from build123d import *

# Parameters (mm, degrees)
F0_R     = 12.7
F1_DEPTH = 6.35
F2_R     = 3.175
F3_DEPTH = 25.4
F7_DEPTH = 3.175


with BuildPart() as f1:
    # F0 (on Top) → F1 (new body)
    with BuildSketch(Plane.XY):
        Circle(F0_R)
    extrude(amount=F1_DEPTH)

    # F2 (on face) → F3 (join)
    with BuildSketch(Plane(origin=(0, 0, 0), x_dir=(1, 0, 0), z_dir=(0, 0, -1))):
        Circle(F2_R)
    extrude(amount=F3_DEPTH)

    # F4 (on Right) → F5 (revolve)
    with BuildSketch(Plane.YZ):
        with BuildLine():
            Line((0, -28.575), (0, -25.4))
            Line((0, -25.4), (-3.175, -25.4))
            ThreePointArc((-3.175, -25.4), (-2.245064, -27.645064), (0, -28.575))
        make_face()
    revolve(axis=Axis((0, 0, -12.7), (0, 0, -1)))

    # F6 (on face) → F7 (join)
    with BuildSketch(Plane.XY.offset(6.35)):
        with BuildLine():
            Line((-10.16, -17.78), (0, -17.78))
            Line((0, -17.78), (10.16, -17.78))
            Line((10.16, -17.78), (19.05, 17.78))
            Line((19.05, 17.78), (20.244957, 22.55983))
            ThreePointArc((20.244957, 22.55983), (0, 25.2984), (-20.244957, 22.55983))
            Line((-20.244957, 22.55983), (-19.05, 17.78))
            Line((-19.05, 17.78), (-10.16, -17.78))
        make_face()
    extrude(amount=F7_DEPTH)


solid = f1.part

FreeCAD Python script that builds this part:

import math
import FreeCAD as App
import Part
import Sketcher

V = App.Vector
Q = App.Units.Quantity

doc = App.newDocument("Part")
body = doc.addObject("PartDesign::Body", "Body")

sketch1 = body.newObject("Sketcher::SketchObject", "Sketch")
sketch1.AttachmentSupport = (doc.getObject("XY_Plane"), [""])
sketch1.MapMode = "FlatFace"
sketch1.addGeometry(Part.Circle(V(0, 0, 0), V(0, 0, 1), 12.7), False)
sketch1.addConstraint([
    Sketcher.Constraint("Coincident", 0, 3, -1, 1),
    Sketcher.Constraint("Diameter", 0, Q("1 in")),
])
pad1 = body.newObject("PartDesign::Pad", "Pad")
pad1.Profile = sketch1
pad1.Length = Q("0.25 in")

sketch2 = body.newObject("Sketcher::SketchObject", "Sketch001")
sketch2.AttachmentSupport = (doc.getObject("XY_Plane"), [""])
sketch2.MapMode = "FlatFace"
sketch2.addGeometry(Part.Circle(V(0, 0, 0), V(0, 0, 1), 3.175), False)
sketch2.addConstraint([
    Sketcher.Constraint("Coincident", 0, 3, -1, 1),
    Sketcher.Constraint("Diameter", 0, Q("0.25 in")),
])
pad2 = body.newObject("PartDesign::Pad", "Pad001")
pad2.Profile = sketch2
pad2.Length = Q("1 in")
pad2.Reversed = True

sketch3 = body.newObject("Sketcher::SketchObject", "Sketch002")
sketch3.AttachmentSupport = (doc.getObject("YZ_Plane"), [""])
sketch3.MapMode = "FlatFace"
sketch3.addGeometry([
    Part.LineSegment(V(0, -28.575, 0), V(0, -25.4, 0)),
    Part.LineSegment(V(0, -25.4, 0), V(-3.175, -25.4, 0)),
    Part.ArcOfCircle(Part.Circle(V(0, -25.4, 0), V(0, 0, 1), 3.175), math.radians(-179.999998), math.radians(-90.000002)),
], False)
sketch3.addConstraint([
    Sketcher.Constraint("Coincident", 0, 2, 1, 1),
    Sketcher.Constraint("Coincident", 1, 2, 2, 1),
    Sketcher.Constraint("Coincident", 2, 2, 0, 1),
    Sketcher.Constraint("Vertical", 0),
    Sketcher.Constraint("Horizontal", 1),
    Sketcher.Constraint("Coincident", 0, 2, 2, 3),
    Sketcher.Constraint("PointOnObject", 2, 3, -2),
    Sketcher.Constraint("DistanceY", 2, 3, -1, 1, Q("1 in")),
    Sketcher.Constraint("Radius", 2, Q("0.125 in")),
])
revolution = body.newObject("PartDesign::Revolution", "Revolution")
revolution.Profile = sketch3
revolution.ReferenceAxis = (sketch3, ["V_Axis"])
revolution.Angle = 360

sketch4 = body.newObject("Sketcher::SketchObject", "Sketch003")
sketch4.AttachmentSupport = (doc.getObject("XY_Plane"), [""])
sketch4.MapMode = "FlatFace"
sketch4.AttachmentOffset = App.Placement(V(0, 0, 0.25 * 25.4), App.Rotation())
sketch4.addGeometry([
    Part.LineSegment(V(-10.16, -17.78, 0), V(10.16, -17.78, 0)),
    Part.LineSegment(V(10.16, -17.78, 0), V(19.05, 17.78, 0)),
    Part.LineSegment(V(19.05, 17.78, 0), V(20.244957, 22.55983, 0)),
    Part.ArcOfCircle(Part.Circle(V(0, -50.901597, 0), V(0, 0, 1), 76.199997), math.radians(74.592527), math.radians(105.407473)),
    Part.LineSegment(V(-20.244957, 22.55983, 0), V(-19.05, 17.78, 0)),
    Part.LineSegment(V(-19.05, 17.78, 0), V(-10.16, -17.78, 0)),
], False)
sketch4.addConstraint([
    Sketcher.Constraint("Coincident", 0, 2, 1, 1),
    Sketcher.Constraint("Coincident", 1, 2, 2, 1),
    Sketcher.Constraint("Coincident", 2, 2, 3, 1),
    Sketcher.Constraint("Coincident", 3, 2, 4, 1),
    Sketcher.Constraint("Coincident", 4, 2, 5, 1),
    Sketcher.Constraint("Coincident", 5, 2, 0, 1),
    Sketcher.Constraint("Horizontal", 0),
    Sketcher.Constraint("Symmetric", 2, 2, 3, 2, -2),
    Sketcher.Constraint("Symmetric", 1, 2, 4, 2, -2),
    Sketcher.Constraint("Parallel", 1, 2),
    Sketcher.Constraint("Parallel", 4, 5),
    Sketcher.Constraint("Radius", 3, Q("2.9999999 in")),
    Sketcher.Constraint("DistanceX", 0, 1, 0, 2, Q("0.8 in")),
    Sketcher.Constraint("DistanceY", 0, 2, -1, 1, Q("0.7 in")),
    Sketcher.Constraint("DistanceY", -1, 1, 1, 2, Q("0.7 in")),
    Sketcher.Constraint("DistanceX", 4, 2, 1, 2, Q("1.5 in")),
    Sketcher.Constraint("DistanceY", 3, 3, -1, 1, Q("2.0039999 in")),
])
pad3 = body.newObject("PartDesign::Pad", "Pad002")
pad3.Profile = sketch4
pad3.Length = Q("0.125 in")

doc.recompute()
